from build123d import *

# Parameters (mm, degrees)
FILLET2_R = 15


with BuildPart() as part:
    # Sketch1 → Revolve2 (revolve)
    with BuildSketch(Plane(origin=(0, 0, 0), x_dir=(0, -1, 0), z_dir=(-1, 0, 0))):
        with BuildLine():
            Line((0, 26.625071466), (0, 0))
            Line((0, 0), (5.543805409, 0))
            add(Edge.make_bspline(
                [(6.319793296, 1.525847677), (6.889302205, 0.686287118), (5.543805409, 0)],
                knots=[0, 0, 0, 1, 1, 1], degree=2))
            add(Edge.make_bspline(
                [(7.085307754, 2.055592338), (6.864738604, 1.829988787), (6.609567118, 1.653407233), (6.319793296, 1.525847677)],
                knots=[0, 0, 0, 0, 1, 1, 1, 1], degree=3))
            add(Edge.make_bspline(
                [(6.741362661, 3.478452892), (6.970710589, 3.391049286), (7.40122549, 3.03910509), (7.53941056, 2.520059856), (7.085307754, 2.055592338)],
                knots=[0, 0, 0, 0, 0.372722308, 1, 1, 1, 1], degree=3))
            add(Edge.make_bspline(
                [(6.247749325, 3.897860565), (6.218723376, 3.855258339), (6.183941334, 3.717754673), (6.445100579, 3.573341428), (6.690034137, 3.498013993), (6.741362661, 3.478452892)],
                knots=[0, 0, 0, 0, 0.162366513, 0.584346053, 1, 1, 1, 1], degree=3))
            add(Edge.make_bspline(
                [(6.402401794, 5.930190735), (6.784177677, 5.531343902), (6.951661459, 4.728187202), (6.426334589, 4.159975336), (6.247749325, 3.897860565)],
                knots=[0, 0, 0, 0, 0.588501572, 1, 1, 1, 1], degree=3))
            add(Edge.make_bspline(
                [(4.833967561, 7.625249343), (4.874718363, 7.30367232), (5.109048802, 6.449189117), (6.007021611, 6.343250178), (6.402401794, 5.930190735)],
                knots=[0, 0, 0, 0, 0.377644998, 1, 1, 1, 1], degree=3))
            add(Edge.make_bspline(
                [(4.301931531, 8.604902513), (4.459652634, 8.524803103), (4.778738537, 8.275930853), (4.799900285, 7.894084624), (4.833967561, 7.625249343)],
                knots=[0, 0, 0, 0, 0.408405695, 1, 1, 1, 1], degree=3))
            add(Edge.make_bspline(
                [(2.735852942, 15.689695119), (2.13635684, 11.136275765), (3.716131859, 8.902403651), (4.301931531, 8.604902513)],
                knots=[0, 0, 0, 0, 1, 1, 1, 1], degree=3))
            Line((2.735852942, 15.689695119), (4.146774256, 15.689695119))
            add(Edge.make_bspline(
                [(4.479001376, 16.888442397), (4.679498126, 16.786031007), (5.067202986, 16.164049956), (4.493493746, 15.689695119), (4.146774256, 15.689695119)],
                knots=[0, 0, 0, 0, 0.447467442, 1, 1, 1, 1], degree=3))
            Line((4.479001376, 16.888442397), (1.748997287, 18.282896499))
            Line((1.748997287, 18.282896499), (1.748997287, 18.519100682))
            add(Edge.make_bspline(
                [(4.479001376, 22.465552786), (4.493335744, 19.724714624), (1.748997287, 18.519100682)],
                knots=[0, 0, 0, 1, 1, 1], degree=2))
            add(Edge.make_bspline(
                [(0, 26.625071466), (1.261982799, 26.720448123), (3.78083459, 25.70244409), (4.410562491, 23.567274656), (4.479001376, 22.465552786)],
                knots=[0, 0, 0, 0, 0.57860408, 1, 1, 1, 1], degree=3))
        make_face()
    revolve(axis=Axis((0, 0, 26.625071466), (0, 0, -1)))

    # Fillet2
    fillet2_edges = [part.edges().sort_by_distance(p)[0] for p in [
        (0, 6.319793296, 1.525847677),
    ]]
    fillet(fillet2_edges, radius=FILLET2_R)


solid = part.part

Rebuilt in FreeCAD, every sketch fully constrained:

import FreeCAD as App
import Part
import Sketcher


def edges_at(feature, points):
    """Names of the edges that pass closest to the given points."""
    edges = feature.Shape.Edges
    near = lambda p: min(range(len(edges)), key=lambda i: edges[i].distToShape(Part.Vertex(*p))[0])
    return sorted({f"Edge{near(p) + 1}" for p in points})

doc = App.newDocument("Part")
body = doc.addObject("PartDesign::Body", "Body")

# Sketch on YZ plane
sketch1 = doc.addObject("Sketcher::SketchObject", "Sketch")
body.addObject(sketch1)
sketch1.AttachmentSupport = (doc.YZ_Plane, [""])
sketch1.MapMode = "FlatFace"
sketch1.addGeometry(Part.LineSegment(App.Vector(0, 26.625071, 0), App.Vector(0, 0, 0)), False)
sketch1.addGeometry(Part.LineSegment(App.Vector(0, 0, 0), App.Vector(-5.543805, 0, 0)), False)
sketch1.addGeometry(Part.BSplineCurve([App.Vector(-6.319793, 1.525848, 0), App.Vector(-6.889302, 0.686287, 0), App.Vector(-5.543805, 0, 0)], [3, 3], [0, 1], False, 2, [1, 1, 1], False), False)
sketch1.addGeometry(Part.BSplineCurve([App.Vector(-7.085308, 2.055592, 0), App.Vector(-6.864739, 1.829989, 0), App.Vector(-6.609567, 1.653407, 0), App.Vector(-6.319793, 1.525848, 0)], [4, 4], [0, 1], False, 3, [1, 1, 1, 1], False), False)
sketch1.addGeometry(Part.BSplineCurve([App.Vector(-6.741363, 3.478453, 0), App.Vector(-6.970711, 3.391049, 0), App.Vector(-7.401225, 3.039105, 0), App.Vector(-7.539411, 2.52006, 0), App.Vector(-7.085308, 2.055592, 0)], [4, 1, 4], [0, 0.372722308, 1], False, 3, [1, 1, 1, 1, 1], False), False)
sketch1.addGeometry(Part.BSplineCurve([App.Vector(-6.247749, 3.897861, 0), App.Vector(-6.218723, 3.855258, 0), App.Vector(-6.183941, 3.717755, 0), App.Vector(-6.445101, 3.573341, 0), App.Vector(-6.690034, 3.498014, 0), App.Vector(-6.741363, 3.478453, 0)], [4, 1, 1, 4], [0, 0.162366513, 0.584346053, 1], False, 3, [1, 1, 1, 1, 1, 1], False), False)
sketch1.addGeometry(Part.BSplineCurve([App.Vector(-6.402402, 5.930191, 0), App.Vector(-6.784178, 5.531344, 0), App.Vector(-6.951661, 4.728187, 0), App.Vector(-6.426335, 4.159975, 0), App.Vector(-6.247749, 3.897861, 0)], [4, 1, 4], [0, 0.588501572, 1], False, 3, [1, 1, 1, 1, 1], False), False)
sketch1.addGeometry(Part.BSplineCurve([App.Vector(-4.833968, 7.625249, 0), App.Vector(-4.874718, 7.303672, 0), App.Vector(-5.109049, 6.449189, 0), App.Vector(-6.007022, 6.34325, 0), App.Vector(-6.402402, 5.930191, 0)], [4, 1, 4], [0, 0.377644998, 1], False, 3, [1, 1, 1, 1, 1], False), False)
sketch1.addGeometry(Part.BSplineCurve([App.Vector(-4.301932, 8.604903, 0), App.Vector(-4.459653, 8.524803, 0), App.Vector(-4.778739, 8.275931, 0), App.Vector(-4.7999, 7.894085, 0), App.Vector(-4.833968, 7.625249, 0)], [4, 1, 4], [0, 0.408405695, 1], False, 3, [1, 1, 1, 1, 1], False), False)
sketch1.addGeometry(Part.BSplineCurve([App.Vector(-2.735853, 15.689695, 0), App.Vector(-2.136357, 11.136276, 0), App.Vector(-3.716132, 8.902404, 0), App.Vector(-4.301932, 8.604903, 0)], [4, 4], [0, 1], False, 3, [1, 1, 1, 1], False), False)
sketch1.addGeometry(Part.LineSegment(App.Vector(-2.735853, 15.689695, 0), App.Vector(-4.146774, 15.689695, 0)), False)
sketch1.addGeometry(Part.BSplineCurve([App.Vector(-4.479001, 16.888442, 0), App.Vector(-4.679498, 16.786031, 0), App.Vector(-5.067203, 16.16405, 0), App.Vector(-4.493494, 15.689695, 0), App.Vector(-4.146774, 15.689695, 0)], [4, 1, 4], [0, 0.447467442, 1], False, 3, [1, 1, 1, 1, 1], False), False)
sketch1.addGeometry(Part.LineSegment(App.Vector(-4.479001, 16.888442, 0), App.Vector(-1.748997, 18.282896, 0)), False)
sketch1.addGeometry(Part.LineSegment(App.Vector(-1.748997, 18.282896, 0), App.Vector(-1.748997, 18.519101, 0)), False)
sketch1.addGeometry(Part.BSplineCurve([App.Vector(-4.479001, 22.465553, 0), App.Vector(-4.493336, 19.724715, 0), App.Vector(-1.748997, 18.519101, 0)], [3, 3], [0, 1], False, 2, [1, 1, 1], False), False)
sketch1.addGeometry(Part.BSplineCurve([App.Vector(0, 26.625071, 0), App.Vector(-1.261983, 26.720448, 0), App.Vector(-3.780835, 25.702444, 0), App.Vector(-4.410562, 23.567275, 0), App.Vector(-4.479001, 22.465553, 0)], [4, 1, 4], [0, 0.57860408, 1], False, 3, [1, 1, 1, 1, 1], False), False)
sketch1.addConstraint(Sketcher.Constraint("Block", 2))
sketch1.addConstraint(Sketcher.Constraint("Block", 3))
sketch1.addConstraint(Sketcher.Constraint("Block", 4))
sketch1.addConstraint(Sketcher.Constraint("Block", 5))
sketch1.addConstraint(Sketcher.Constraint("Block", 6))
sketch1.addConstraint(Sketcher.Constraint("Block", 7))
sketch1.addConstraint(Sketcher.Constraint("Block", 8))
sketch1.addConstraint(Sketcher.Constraint("Block", 9))
sketch1.addConstraint(Sketcher.Constraint("Block", 11))
sketch1.addConstraint(Sketcher.Constraint("Block", 14))
sketch1.addConstraint(Sketcher.Constraint("Block", 15))
sketch1.addConstraint(Sketcher.Constraint("Coincident", 0, 2, 1, 1))
sketch1.addConstraint(Sketcher.Constraint("Coincident", 1, 2, 2, 2))
sketch1.addConstraint(Sketcher.Constraint("Coincident", 9, 1, 10, 1))
sketch1.addConstraint(Sketcher.Constraint("Coincident", 10, 2, 11, 2))
sketch1.addConstraint(Sketcher.Constraint("Coincident", 11, 1, 12, 1))
sketch1.addConstraint(Sketcher.Constraint("Coincident", 12, 2, 13, 1))
sketch1.addConstraint(Sketcher.Constraint("Coincident", 13, 2, 14, 2))
sketch1.addConstraint(Sketcher.Constraint("Coincident", 15, 1, 0, 1))
sketch1.addConstraint(Sketcher.Constraint("Vertical", 0))
sketch1.addConstraint(Sketcher.Constraint("Horizontal", 1))
sketch1.addConstraint(Sketcher.Constraint("Vertical", 13))
sketch1.addConstraint(Sketcher.Constraint("DistanceY", 10, 2, 12, 2, 2.593201))
revolution = doc.addObject("PartDesign::Revolution", "Revolution")
body.addObject(revolution)
revolution.Profile = sketch1
revolution.ReferenceAxis = (sketch1, ["V_Axis"])
revolution.Angle = 360
doc.recompute()

fillet = doc.addObject("PartDesign::Fillet", "Fillet")
body.addObject(fillet)
fillet.Base = (revolution, edges_at(revolution, [(0, 6.32, 1.526)]))
fillet.Radius = 15

doc.recompute()
